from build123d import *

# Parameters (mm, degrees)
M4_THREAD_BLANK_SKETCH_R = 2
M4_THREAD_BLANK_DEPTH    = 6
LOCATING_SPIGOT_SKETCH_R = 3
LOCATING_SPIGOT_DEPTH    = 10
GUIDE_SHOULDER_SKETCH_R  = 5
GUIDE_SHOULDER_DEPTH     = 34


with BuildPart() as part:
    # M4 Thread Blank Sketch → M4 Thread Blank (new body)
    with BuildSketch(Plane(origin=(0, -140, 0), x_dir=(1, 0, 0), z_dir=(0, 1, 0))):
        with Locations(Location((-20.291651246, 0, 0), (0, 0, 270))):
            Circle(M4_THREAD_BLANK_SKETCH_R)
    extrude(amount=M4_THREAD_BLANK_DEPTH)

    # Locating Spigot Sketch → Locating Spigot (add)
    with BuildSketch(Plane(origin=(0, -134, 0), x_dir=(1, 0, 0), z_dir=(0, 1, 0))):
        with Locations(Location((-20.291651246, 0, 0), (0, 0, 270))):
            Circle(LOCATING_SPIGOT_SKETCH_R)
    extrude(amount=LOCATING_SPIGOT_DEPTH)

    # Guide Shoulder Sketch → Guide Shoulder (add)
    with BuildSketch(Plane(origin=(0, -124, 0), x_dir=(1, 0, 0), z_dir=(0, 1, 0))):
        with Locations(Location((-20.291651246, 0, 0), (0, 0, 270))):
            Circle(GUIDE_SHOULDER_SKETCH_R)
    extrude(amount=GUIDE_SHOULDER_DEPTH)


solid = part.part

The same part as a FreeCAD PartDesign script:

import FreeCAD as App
import Part
import Sketcher
from FreeCAD import Vector
Q = App.Units.Quantity

doc = App.newDocument("Part")
body = doc.addObject("PartDesign::Body", "Body")

# Sketch on XZ plane
sketch1 = doc.addObject("Sketcher::SketchObject", "Sketch")
body.addObject(sketch1)
sketch1.AttachmentSupport = (doc.XZ_Plane, [""])
sketch1.MapMode = "FlatFace"
sketch1.AttachmentOffset = App.Placement(Vector(0, 0, 140), App.Rotation())
sketch1.addGeometry(Part.Circle(Vector(-20.3, 0, 0), Vector(0, 0, 1), 2), False)
sketch1.addConstraint([
    Sketcher.Constraint("PointOnObject", 0, 3, -1),
    Sketcher.Constraint("Diameter", 0, Q("4 mm")),
    Sketcher.Constraint("DistanceX", 0, 3, -1, 1, Q("20.291651 mm")),
])
pad1 = doc.addObject("PartDesign::Pad", "Pad")
body.addObject(pad1)
pad1.Profile = sketch1
pad1.Length = 6
pad1.Reversed = True

# Sketch on XZ plane
sketch2 = doc.addObject("Sketcher::SketchObject", "Sketch001")
body.addObject(sketch2)
sketch2.AttachmentSupport = (doc.XZ_Plane, [""])
sketch2.MapMode = "FlatFace"
sketch2.AttachmentOffset = App.Placement(Vector(0, 0, 134), App.Rotation())
sketch2.addGeometry(Part.Circle(Vector(-20.3, 0, 0), Vector(0, 0, 1), 3), False)
sketch2.addConstraint([
    Sketcher.Constraint("PointOnObject", 0, 3, -1),
    Sketcher.Constraint("Diameter", 0, Q("6 mm")),
    Sketcher.Constraint("DistanceX", 0, 3, -1, 1, Q("20.291651 mm")),
])
pad2 = doc.addObject("PartDesign::Pad", "Pad001")
body.addObject(pad2)
pad2.Profile = sketch2
pad2.Length = 10
pad2.Reversed = True

# Sketch on XZ plane
sketch3 = doc.addObject("Sketcher::SketchObject", "Sketch002")
body.addObject(sketch3)
sketch3.AttachmentSupport = (doc.XZ_Plane, [""])
sketch3.MapMode = "FlatFace"
sketch3.AttachmentOffset = App.Placement(Vector(0, 0, 124), App.Rotation())
sketch3.addGeometry(Part.Circle(Vector(-20, 0, 0), Vector(0, 0, 1), 5), False)
sketch3.addConstraint([
    Sketcher.Constraint("PointOnObject", 0, 3, -1),
    Sketcher.Constraint("Diameter", 0, Q("10 mm")),
    Sketcher.Constraint("DistanceX", 0, 3, -1, 1, Q("20.291651 mm")),
])
pad3 = doc.addObject("PartDesign::Pad", "Pad002")
body.addObject(pad3)
pad3.Profile = sketch3
pad3.Length = 34
pad3.Reversed = True

doc.recompute()
